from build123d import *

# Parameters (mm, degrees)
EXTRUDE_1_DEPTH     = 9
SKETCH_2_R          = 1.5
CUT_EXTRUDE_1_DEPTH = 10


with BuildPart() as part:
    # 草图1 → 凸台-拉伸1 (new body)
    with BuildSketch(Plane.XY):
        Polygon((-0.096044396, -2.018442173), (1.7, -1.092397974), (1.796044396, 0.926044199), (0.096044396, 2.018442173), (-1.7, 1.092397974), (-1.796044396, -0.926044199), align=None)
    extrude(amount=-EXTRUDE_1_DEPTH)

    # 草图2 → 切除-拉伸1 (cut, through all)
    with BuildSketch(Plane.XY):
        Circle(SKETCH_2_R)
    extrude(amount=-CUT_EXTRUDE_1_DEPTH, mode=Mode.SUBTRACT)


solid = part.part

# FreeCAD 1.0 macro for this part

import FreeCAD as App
import Part
import Sketcher
from FreeCAD import Vector


def add_polygon(sketch, points):
    """Adds a closed chain of lines whose ends are joined by coincident constraints."""
    first, n = sketch.GeometryCount, len(points)
    for a, b in zip(points, points[1:] + points[:1]):
        sketch.addGeometry(Part.LineSegment(App.Vector(*a, 0), App.Vector(*b, 0)), False)
    for i in range(n):
        sketch.addConstraint(Sketcher.Constraint("Coincident", first + i, 2, first + (i + 1) % n, 1))

doc = App.newDocument("Part")
body = doc.addObject("PartDesign::Body", "Body")

sketch1 = body.newObject("Sketcher::SketchObject", "Sketch")
sketch1.AttachmentSupport = (doc.getObject("XY_Plane"), [""])
sketch1.MapMode = "FlatFace"
add_polygon(sketch1, [(-0.096044, -2.018442), (1.7, -1.092398), (1.796044, 0.926044), (0.096044, 2.018442), (-1.7, 1.092398), (-1.796044, -0.926044)])
sketch1.addConstraint([
    Sketcher.Constraint("Symmetric", 0, 2, 3, 2, -1, 1),
    Sketcher.Constraint("Symmetric", 1, 2, 4, 2, -1, 1),
    Sketcher.Constraint("Symmetric", 2, 2, 5, 2, -1, 1),
    Sketcher.Constraint("Equal", 0, 1),
    Sketcher.Constraint("Equal", 1, 2),
    Sketcher.Constraint("DistanceX", -1, 1, 0, 2, 1.7),
    Sketcher.Constraint("DistanceX", 2, 2, 1, 2, 1.7),
    Sketcher.Constraint("DistanceY", 0, 2, 2, 2, 3.11084),
    Sketcher.Constraint("DistanceX", 4, 2, 2, 2, 1.892089),
])
pad1 = body.newObject("PartDesign::Pad", "Pad")
pad1.Profile = sketch1
pad1.Length = 9
pad1.Reversed = True

sketch2 = body.newObject("Sketcher::SketchObject", "Sketch001")
sketch2.AttachmentSupport = (doc.getObject("XY_Plane"), [""])
sketch2.MapMode = "FlatFace"
sketch2.addGeometry(Part.Circle(Vector(0, 0, 0), Vector(0, 0, 1), 1.5), False)
sketch2.addConstraint([
    Sketcher.Constraint("Coincident", 0, 3, -1, 1),
    Sketcher.Constraint("Diameter", 0, 3.0),
])
pocket1 = body.newObject("PartDesign::Pocket", "Pocket")
pocket1.Profile = sketch2
pocket1.Type = "ThroughAll"

doc.recompute()
